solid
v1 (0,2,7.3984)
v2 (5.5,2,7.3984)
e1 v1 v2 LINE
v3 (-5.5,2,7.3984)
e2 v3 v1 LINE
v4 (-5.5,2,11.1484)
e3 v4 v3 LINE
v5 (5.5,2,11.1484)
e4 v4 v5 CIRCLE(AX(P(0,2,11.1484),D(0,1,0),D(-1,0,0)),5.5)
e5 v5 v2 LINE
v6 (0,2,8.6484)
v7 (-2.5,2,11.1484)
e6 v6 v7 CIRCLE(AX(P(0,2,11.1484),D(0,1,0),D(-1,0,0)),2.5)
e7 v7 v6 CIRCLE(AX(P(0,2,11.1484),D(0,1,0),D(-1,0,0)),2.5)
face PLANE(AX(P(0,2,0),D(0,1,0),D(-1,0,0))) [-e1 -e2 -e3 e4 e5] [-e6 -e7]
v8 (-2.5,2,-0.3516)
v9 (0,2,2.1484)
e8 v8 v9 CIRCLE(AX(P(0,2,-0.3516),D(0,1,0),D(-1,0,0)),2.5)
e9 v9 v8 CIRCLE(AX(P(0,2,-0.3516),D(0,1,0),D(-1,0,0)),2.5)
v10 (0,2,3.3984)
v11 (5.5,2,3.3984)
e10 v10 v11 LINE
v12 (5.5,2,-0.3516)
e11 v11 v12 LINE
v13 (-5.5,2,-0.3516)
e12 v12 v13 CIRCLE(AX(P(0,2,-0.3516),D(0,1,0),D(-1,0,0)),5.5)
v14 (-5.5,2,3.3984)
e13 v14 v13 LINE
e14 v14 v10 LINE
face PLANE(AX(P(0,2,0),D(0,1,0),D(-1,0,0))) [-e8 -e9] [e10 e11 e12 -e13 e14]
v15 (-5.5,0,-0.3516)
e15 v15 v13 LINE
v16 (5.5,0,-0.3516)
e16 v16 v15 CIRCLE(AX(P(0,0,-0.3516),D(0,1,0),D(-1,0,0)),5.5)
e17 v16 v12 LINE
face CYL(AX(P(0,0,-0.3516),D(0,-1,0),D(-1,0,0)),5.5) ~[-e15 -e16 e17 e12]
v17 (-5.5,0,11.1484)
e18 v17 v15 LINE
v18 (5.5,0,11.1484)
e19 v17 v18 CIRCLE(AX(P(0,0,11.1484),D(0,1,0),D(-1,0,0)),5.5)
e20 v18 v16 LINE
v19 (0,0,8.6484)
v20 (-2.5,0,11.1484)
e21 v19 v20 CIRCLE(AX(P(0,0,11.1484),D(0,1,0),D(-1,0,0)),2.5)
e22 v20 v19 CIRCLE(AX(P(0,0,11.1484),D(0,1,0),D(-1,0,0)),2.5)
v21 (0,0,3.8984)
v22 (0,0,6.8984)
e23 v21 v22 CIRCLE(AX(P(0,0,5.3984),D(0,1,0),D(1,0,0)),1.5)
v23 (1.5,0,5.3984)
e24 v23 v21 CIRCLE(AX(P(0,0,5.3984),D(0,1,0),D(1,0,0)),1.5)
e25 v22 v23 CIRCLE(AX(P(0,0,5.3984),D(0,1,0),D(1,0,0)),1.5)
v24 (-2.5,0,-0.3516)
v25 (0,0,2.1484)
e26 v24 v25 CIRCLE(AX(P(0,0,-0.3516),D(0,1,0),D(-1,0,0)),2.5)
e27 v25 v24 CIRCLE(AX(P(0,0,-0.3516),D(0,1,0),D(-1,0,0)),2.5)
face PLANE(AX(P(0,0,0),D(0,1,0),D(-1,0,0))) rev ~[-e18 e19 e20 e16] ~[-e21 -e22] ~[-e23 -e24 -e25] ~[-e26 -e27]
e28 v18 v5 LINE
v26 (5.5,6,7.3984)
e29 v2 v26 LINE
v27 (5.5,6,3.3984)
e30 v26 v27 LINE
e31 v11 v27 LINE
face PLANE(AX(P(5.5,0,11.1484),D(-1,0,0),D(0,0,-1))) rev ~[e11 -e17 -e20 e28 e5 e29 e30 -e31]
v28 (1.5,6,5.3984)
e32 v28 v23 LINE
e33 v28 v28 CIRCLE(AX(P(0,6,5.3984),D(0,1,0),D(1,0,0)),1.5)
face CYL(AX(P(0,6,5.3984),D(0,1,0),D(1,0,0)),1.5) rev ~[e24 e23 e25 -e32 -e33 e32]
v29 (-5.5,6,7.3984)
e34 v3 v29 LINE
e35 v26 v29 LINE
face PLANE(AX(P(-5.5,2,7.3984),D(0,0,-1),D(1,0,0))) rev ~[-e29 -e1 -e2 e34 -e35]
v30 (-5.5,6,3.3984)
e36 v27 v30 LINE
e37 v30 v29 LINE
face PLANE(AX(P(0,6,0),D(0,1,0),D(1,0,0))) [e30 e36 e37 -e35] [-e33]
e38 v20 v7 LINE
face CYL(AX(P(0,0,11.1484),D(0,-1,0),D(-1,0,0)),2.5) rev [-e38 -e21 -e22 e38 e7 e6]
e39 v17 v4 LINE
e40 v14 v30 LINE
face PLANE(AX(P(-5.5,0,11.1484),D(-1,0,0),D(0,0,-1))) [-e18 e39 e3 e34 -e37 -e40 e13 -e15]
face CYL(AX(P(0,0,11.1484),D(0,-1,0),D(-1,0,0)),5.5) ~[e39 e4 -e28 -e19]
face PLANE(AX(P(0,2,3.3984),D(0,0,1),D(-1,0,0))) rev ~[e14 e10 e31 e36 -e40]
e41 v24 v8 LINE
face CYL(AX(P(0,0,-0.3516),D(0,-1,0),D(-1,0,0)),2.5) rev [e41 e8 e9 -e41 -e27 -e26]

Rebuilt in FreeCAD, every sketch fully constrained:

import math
import FreeCAD as App
import Part
import Sketcher

V = App.Vector

doc = App.newDocument("Part")
params = doc.addObject("Spreadsheet::Sheet", "Params")
for row, (alias, value) in enumerate([
    ("sketch1_diameter", "5 mm"),
    ("sketch1_radius", "5.5 mm"),
    ("sketch1_height", "11.5 mm"),
    ("pad1_length", "2 mm"),
    ("sketch2_height", "4 mm"),
    ("sketch2_width", "11 mm"),
    ("pad2_length", "4 mm"),
    ("sketch3_diameter", "3 mm"),
    ("pocket1_length", "16.6375 mm"),
], start=1):
    params.set(f"A{row}", alias)
    params.set(f"B{row}", "=" + value)
    params.setAlias(f"B{row}", alias)

body = doc.addObject("PartDesign::Body", "Body")

# Sketch on XZ plane
sketch1 = body.newObject("Sketcher::SketchObject", "Sketch")
sketch1.AttachmentSupport = (doc.getObject("XZ_Plane"), [""])
sketch1.MapMode = "FlatFace"
sketch1.addGeometry([
    Part.ArcOfCircle(Part.Circle(V(0, 11.1, 0), V(0, 0, 1), 5.5), math.radians(0), math.radians(180)),  # 0
    Part.LineSegment(V(5.5, 11.1, 0), V(5.5, -0.4, 0)),  # 1
    Part.ArcOfCircle(Part.Circle(V(0, -0.4, 0), V(0, 0, 1), 5.5), math.radians(180), math.radians(360)),  # 2
    Part.LineSegment(V(-5.5, -0.4, 0), V(-5.5, 11.1, 0)),  # 3
    Part.Circle(V(0, 11.1, 0), V(0, 0, 1), 2.5),  # 4
    Part.Circle(V(0, -0.4, 0), V(0, 0, 1), 2.5),  # 5
], False)
sketch1.addConstraint([
    Sketcher.Constraint("Tangent", 0, 1, 1, 1),
    Sketcher.Constraint("Tangent", 1, 2, 2, 2),
    Sketcher.Constraint("Tangent", 2, 1, 3, 1),
    Sketcher.Constraint("Tangent", 3, 2, 0, 2),
    Sketcher.Constraint("Vertical", 1),
    Sketcher.Constraint("Vertical", 3),
    Sketcher.Constraint("Coincident", 4, 3, 0, 3),
    Sketcher.Constraint("Coincident", 5, 3, 2, 3),
    Sketcher.Constraint("Equal", 4, 5),
    Sketcher.Constraint("PointOnObject", 0, 3, -2),
    Sketcher.Constraint("Diameter", 4, 5.0),
    Sketcher.Constraint("Radius", 0, 5.5),
    Sketcher.Constraint("DistanceY", 1, 2, 1, 1, 11.5),
    Sketcher.Constraint("DistanceY", -1, 1, 0, 3, 11.1484),
])
sketch1.setExpression("Constraints[10]", "Params.sketch1_diameter")
sketch1.setExpression("Constraints[11]", "Params.sketch1_radius")
sketch1.setExpression("Constraints[12]", "Params.sketch1_height")
pad1 = body.newObject("PartDesign::Pad", "Pad")
pad1.Profile = sketch1
pad1.setExpression("Length", "Params.pad1_length")
pad1.Reversed = True

# Sketch on XZ plane
sketch2 = body.newObject("Sketcher::SketchObject", "Sketch001")
sketch2.AttachmentSupport = (doc.getObject("XZ_Plane"), [""])
sketch2.MapMode = "FlatFace"
sketch2.AttachmentOffset = App.Placement(V(0, 0, -2), App.Rotation())
sketch2.addGeometry([
    Part.LineSegment(V(-5.5, 7.4, 0), V(5.5, 7.4, 0)),
    Part.LineSegment(V(5.5, 7.4, 0), V(5.5, 3.4, 0)),
    Part.LineSegment(V(5.5, 3.4, 0), V(-5.5, 3.4, 0)),
    Part.LineSegment(V(-5.5, 3.4, 0), V(-5.5, 7.4, 0)),
], False)
sketch2.addConstraint([
    Sketcher.Constraint("Coincident", 0, 2, 1, 1),
    Sketcher.Constraint("Coincident", 1, 2, 2, 1),
    Sketcher.Constraint("Coincident", 2, 2, 3, 1),
    Sketcher.Constraint("Coincident", 3, 2, 0, 1),
    Sketcher.Constraint("Horizontal", 0),
    Sketcher.Constraint("Vertical", 1),
    Sketcher.Constraint("Horizontal", 2),
    Sketcher.Constraint("Vertical", 3),
    Sketcher.Constraint("DistanceY", 1, 2, 1, 1, 4.0),
    Sketcher.Constraint("DistanceX", 0, 1, 0, 2, 11.0),
    Sketcher.Constraint("DistanceX", -1, 1, 0, 2, 5.5),
    Sketcher.Constraint("DistanceY", -1, 1, 0, 2, 7.3984),
])
sketch2.setExpression("Constraints[8]", "Params.sketch2_height")
sketch2.setExpression("Constraints[9]", "Params.sketch2_width")
pad2 = body.newObject("PartDesign::Pad", "Pad001")
pad2.Profile = sketch2
pad2.setExpression("Length", "Params.pad2_length")
pad2.Reversed = True

# Sketch on XZ plane
sketch3 = body.newObject("Sketcher::SketchObject", "Sketch002")
sketch3.AttachmentSupport = (doc.getObject("XZ_Plane"), [""])
sketch3.MapMode = "FlatFace"
sketch3.AttachmentOffset = App.Placement(V(0, 0, -6), App.Rotation())
sketch3.addGeometry(Part.Circle(V(0, 5.4, 0), V(0, 0, 1), 1.5), False)
sketch3.addConstraint([
    Sketcher.Constraint("PointOnObject", 0, 3, -2),
    Sketcher.Constraint("Diameter", 0, 3.0),
    Sketcher.Constraint("DistanceY", -1, 1, 0, 3, 5.3984),
])
sketch3.setExpression("Constraints[1]", "Params.sketch3_diameter")
pocket1 = body.newObject("PartDesign::Pocket", "Pocket")
pocket1.Profile = sketch3
pocket1.setExpression("Length", "Params.pocket1_length")
pocket1.Reversed = True

doc.recompute()
